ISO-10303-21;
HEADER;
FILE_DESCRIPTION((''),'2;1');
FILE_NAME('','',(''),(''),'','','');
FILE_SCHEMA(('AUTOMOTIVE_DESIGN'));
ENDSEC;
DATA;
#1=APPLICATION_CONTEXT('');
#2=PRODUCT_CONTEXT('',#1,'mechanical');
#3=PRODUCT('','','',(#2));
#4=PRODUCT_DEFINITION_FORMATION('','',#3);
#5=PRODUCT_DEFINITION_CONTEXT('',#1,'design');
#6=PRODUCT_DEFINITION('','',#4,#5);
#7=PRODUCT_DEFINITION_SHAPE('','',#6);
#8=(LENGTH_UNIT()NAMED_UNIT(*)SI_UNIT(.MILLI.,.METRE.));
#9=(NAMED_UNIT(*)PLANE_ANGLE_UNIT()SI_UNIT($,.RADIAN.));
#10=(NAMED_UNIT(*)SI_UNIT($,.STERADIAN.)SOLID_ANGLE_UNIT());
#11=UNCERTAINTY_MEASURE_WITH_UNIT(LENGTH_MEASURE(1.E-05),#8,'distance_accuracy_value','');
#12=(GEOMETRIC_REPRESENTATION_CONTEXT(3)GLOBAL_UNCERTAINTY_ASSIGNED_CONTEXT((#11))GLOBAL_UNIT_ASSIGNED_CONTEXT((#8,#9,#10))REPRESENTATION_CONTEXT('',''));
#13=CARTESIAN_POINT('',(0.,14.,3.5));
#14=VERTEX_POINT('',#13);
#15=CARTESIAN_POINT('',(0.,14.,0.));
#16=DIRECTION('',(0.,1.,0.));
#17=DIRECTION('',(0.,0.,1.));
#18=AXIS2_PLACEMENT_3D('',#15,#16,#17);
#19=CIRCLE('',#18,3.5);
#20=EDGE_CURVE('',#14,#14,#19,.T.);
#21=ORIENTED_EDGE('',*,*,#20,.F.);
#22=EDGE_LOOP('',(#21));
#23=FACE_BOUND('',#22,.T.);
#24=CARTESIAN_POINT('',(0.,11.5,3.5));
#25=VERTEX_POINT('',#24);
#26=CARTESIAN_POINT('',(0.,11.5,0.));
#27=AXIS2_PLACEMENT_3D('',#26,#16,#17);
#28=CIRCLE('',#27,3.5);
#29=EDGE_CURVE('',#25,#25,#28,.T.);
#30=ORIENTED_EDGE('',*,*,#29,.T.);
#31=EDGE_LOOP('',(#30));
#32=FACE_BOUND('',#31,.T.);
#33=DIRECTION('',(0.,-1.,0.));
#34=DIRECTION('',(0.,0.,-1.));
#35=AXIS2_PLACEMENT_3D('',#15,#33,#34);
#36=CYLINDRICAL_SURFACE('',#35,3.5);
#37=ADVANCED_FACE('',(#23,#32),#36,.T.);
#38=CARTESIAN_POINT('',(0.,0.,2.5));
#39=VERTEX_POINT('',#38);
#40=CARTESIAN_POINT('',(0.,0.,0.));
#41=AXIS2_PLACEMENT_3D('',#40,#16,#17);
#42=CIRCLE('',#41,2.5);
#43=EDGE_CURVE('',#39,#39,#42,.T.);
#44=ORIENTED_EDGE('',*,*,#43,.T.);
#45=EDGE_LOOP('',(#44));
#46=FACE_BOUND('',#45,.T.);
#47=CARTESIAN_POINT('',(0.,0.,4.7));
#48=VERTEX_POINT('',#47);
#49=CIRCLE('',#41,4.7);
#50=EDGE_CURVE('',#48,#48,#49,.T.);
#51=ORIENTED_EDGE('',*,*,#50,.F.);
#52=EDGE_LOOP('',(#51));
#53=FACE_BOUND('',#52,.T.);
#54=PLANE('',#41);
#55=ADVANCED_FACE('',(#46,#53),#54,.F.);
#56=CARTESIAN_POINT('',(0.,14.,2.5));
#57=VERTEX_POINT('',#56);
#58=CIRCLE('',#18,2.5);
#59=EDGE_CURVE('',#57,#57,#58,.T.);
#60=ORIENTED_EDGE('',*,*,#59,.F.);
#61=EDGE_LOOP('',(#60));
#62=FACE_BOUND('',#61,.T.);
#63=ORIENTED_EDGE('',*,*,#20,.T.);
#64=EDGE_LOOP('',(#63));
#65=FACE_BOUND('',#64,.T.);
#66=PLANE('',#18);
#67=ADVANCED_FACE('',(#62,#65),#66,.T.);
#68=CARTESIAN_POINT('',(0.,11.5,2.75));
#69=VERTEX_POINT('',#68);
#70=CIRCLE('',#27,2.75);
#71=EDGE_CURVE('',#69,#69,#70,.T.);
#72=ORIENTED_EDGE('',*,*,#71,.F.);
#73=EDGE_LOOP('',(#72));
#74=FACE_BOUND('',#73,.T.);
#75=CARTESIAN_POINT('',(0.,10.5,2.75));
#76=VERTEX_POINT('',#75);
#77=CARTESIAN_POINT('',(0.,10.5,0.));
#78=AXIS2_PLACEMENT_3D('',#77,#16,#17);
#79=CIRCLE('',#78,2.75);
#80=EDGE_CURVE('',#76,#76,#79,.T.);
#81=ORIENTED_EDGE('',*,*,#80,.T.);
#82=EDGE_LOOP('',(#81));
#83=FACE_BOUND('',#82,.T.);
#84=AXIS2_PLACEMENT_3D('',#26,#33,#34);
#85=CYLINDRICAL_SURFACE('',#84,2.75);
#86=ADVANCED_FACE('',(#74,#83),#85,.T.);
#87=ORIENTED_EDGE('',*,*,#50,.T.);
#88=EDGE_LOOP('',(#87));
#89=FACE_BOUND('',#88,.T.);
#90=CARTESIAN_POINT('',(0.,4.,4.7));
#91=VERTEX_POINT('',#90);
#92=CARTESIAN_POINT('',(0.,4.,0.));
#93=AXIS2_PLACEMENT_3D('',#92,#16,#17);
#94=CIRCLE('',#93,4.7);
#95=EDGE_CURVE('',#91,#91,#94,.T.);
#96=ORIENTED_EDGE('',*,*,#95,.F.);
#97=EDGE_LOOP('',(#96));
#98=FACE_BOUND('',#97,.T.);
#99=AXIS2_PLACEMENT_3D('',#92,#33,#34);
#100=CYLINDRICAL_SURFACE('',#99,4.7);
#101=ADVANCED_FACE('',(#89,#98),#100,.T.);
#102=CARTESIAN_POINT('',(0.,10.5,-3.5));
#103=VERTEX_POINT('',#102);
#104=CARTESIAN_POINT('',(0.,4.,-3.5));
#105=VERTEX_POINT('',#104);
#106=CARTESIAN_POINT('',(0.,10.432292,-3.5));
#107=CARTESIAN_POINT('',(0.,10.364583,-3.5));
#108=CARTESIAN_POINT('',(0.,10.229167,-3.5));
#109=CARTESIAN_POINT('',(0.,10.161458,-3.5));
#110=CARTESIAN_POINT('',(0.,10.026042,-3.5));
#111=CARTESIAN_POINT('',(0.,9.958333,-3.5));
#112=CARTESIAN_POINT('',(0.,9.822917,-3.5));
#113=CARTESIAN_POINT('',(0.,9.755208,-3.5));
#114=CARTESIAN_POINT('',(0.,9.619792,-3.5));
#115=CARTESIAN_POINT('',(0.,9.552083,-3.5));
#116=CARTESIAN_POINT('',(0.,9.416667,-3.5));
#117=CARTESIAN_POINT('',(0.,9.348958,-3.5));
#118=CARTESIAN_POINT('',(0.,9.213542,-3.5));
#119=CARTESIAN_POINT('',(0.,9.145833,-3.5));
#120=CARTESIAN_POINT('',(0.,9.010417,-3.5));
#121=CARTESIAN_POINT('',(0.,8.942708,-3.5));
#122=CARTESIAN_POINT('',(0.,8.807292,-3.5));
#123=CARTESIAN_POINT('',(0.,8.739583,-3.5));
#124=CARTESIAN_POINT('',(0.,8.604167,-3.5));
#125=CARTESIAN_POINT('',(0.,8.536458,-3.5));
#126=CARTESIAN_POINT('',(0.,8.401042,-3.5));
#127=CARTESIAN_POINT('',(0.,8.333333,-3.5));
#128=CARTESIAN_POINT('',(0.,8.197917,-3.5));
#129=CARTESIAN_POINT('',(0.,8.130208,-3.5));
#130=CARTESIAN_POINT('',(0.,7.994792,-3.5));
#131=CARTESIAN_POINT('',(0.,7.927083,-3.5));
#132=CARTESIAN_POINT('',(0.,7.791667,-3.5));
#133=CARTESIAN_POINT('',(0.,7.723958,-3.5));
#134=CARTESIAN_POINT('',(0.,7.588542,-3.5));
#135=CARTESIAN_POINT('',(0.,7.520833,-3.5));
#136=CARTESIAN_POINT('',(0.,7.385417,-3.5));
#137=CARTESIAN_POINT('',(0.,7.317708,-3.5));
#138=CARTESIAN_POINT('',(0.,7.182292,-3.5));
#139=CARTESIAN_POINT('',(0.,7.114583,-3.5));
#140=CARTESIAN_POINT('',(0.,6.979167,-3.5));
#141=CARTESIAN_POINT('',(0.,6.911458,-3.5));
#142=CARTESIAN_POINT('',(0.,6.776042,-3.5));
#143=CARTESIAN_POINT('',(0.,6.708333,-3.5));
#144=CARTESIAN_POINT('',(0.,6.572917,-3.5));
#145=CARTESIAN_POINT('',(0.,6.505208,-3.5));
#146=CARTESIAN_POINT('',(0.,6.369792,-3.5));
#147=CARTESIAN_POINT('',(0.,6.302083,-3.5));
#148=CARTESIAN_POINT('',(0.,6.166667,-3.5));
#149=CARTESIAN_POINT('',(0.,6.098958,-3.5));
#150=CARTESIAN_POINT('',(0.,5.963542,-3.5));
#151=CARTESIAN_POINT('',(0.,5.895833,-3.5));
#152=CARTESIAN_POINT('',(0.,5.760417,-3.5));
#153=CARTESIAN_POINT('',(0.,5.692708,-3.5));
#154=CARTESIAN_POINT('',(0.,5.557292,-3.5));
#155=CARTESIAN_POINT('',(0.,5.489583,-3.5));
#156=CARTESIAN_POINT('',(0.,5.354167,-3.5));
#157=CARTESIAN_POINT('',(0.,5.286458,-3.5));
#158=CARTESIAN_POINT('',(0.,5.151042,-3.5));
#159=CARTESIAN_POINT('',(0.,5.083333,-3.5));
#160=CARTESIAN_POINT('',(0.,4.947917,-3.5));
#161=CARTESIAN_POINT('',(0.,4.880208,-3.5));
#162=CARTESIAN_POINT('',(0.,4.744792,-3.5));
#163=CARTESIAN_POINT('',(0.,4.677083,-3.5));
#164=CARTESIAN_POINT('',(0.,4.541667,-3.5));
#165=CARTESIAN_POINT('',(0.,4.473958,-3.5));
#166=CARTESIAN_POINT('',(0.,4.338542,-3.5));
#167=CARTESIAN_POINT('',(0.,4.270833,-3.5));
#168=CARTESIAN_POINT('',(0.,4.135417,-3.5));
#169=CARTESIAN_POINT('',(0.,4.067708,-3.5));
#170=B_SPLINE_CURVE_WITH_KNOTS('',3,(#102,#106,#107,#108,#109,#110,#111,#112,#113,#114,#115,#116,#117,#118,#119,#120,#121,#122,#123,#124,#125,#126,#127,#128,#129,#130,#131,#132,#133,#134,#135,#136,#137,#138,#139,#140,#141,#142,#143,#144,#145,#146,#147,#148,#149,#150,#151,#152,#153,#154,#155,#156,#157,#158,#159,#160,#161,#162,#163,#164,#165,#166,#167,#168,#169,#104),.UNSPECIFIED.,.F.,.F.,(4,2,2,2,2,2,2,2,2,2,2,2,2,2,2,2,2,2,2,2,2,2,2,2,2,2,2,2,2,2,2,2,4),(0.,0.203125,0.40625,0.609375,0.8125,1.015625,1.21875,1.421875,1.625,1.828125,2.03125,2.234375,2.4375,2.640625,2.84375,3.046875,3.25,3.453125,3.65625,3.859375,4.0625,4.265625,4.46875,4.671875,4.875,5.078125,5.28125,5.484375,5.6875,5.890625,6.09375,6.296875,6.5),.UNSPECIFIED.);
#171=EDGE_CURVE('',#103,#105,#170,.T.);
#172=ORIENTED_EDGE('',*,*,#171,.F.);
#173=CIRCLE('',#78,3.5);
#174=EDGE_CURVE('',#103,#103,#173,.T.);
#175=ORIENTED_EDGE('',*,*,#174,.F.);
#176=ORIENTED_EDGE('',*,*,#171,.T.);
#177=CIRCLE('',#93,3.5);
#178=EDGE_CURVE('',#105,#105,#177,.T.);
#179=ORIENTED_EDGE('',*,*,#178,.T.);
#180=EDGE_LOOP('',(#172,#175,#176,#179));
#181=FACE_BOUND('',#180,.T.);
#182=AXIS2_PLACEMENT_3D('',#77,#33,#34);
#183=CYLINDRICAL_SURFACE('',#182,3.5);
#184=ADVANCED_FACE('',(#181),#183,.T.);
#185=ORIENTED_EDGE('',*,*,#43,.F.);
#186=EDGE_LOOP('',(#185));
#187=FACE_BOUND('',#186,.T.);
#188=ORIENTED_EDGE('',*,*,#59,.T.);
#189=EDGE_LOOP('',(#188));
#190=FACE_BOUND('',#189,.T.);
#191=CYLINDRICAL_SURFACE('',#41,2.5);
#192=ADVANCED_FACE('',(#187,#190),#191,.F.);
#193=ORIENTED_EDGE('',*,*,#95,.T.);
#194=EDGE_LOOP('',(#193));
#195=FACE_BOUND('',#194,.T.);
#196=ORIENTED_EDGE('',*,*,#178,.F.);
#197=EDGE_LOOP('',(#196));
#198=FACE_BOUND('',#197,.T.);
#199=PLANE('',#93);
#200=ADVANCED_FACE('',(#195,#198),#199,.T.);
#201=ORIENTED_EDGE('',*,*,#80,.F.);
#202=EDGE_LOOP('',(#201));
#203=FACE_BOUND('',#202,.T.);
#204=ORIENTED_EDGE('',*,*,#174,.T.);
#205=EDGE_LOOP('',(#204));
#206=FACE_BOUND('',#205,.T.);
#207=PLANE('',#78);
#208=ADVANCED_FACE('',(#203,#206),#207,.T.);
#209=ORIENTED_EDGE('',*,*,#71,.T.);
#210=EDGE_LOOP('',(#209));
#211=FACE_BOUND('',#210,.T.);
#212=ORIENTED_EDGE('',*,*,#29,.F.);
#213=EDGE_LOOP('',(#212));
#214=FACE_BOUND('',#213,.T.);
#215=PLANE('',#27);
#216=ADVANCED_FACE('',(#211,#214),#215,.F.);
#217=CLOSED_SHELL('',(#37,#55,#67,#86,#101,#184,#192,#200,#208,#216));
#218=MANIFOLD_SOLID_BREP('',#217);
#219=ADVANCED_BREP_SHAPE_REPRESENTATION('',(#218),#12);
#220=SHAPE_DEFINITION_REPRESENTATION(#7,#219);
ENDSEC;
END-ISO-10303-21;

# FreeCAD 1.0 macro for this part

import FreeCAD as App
import Part
import Sketcher

V = App.Vector

doc = App.newDocument("Part")
params = doc.addObject("Spreadsheet::Sheet", "Params")
for row, (alias, value) in enumerate([
    ("sketch1_diameter", "9.4 mm"),
    ("pad1_length", "4 mm"),
    ("sketch2_diameter", "7 mm"),
    ("pad2_length", "6.5 mm"),
    ("sketch3_diameter", "5.5 mm"),
    ("pad3_length", "1 mm"),
    ("sketch4_diameter", "7 mm"),
    ("pad4_length", "2.5 mm"),
    ("sketch5_diameter", "5 mm"),
], start=1):
    params.set(f"A{row}", alias)
    params.set(f"B{row}", "=" + value)
    params.setAlias(f"B{row}", alias)

body = doc.addObject("PartDesign::Body", "Body")

sketch1 = doc.addObject("Sketcher::SketchObject", "Sketch")
body.addObject(sketch1)
sketch1.AttachmentSupport = (doc.XZ_Plane, [""])
sketch1.MapMode = "FlatFace"
sketch1.addGeometry(Part.Circle(V(0, 0, 0), V(0, 0, 1), 4.7), False)
sketch1.addConstraint([
    Sketcher.Constraint("Coincident", 0, 3, -1, 1),
    Sketcher.Constraint("Diameter", 0, 9.4),
])
sketch1.setExpression("Constraints[1]", "Params.sketch1_diameter")
pad1 = doc.addObject("PartDesign::Pad", "Pad")
body.addObject(pad1)
pad1.Profile = sketch1
pad1.setExpression("Length", "Params.pad1_length")
pad1.Reversed = True

sketch2 = doc.addObject("Sketcher::SketchObject", "Sketch001")
body.addObject(sketch2)
sketch2.AttachmentSupport = (doc.XZ_Plane, [""])
sketch2.MapMode = "FlatFace"
sketch2.AttachmentOffset = App.Placement(V(0, 0, -4), App.Rotation())
sketch2.addGeometry(Part.Circle(V(0, 0, 0), V(0, 0, 1), 3.5), False)
sketch2.addConstraint([
    Sketcher.Constraint("Coincident", 0, 3, -1, 1),
    Sketcher.Constraint("Diameter", 0, 7.0),
])
sketch2.setExpression("Constraints[1]", "Params.sketch2_diameter")
pad2 = doc.addObject("PartDesign::Pad", "Pad001")
body.addObject(pad2)
pad2.Profile = sketch2
pad2.setExpression("Length", "Params.pad2_length")
pad2.Reversed = True

sketch3 = doc.addObject("Sketcher::SketchObject", "Sketch002")
body.addObject(sketch3)
sketch3.AttachmentSupport = (doc.XZ_Plane, [""])
sketch3.MapMode = "FlatFace"
sketch3.AttachmentOffset = App.Placement(V(0, 0, -10.5), App.Rotation())
sketch3.addGeometry(Part.Circle(V(0, 0, 0), V(0, 0, 1), 2.8), False)
sketch3.addConstraint([
    Sketcher.Constraint("Coincident", 0, 3, -1, 1),
    Sketcher.Constraint("Diameter", 0, 5.5),
])
sketch3.setExpression("Constraints[1]", "Params.sketch3_diameter")
pad3 = doc.addObject("PartDesign::Pad", "Pad002")
body.addObject(pad3)
pad3.Profile = sketch3
pad3.setExpression("Length", "Params.pad3_length")
pad3.Reversed = True

sketch4 = doc.addObject("Sketcher::SketchObject", "Sketch003")
body.addObject(sketch4)
sketch4.AttachmentSupport = (doc.XZ_Plane, [""])
sketch4.MapMode = "FlatFace"
sketch4.AttachmentOffset = App.Placement(V(0, 0, -11.5), App.Rotation())
sketch4.addGeometry(Part.Circle(V(0, 0, 0), V(0, 0, 1), 3.5), False)
sketch4.addConstraint([
    Sketcher.Constraint("Coincident", 0, 3, -1, 1),
    Sketcher.Constraint("Diameter", 0, 7.0),
])
sketch4.setExpression("Constraints[1]", "Params.sketch4_diameter")
pad4 = doc.addObject("PartDesign::Pad", "Pad003")
body.addObject(pad4)
pad4.Profile = sketch4
pad4.setExpression("Length", "Params.pad4_length")
pad4.Reversed = True

sketch5 = doc.addObject("Sketcher::SketchObject", "Sketch004")
body.addObject(sketch5)
sketch5.AttachmentSupport = (doc.XZ_Plane, [""])
sketch5.MapMode = "FlatFace"
sketch5.AttachmentOffset = App.Placement(V(0, 0, -14), App.Rotation())
sketch5.addGeometry(Part.Circle(V(0, 0, 0), V(0, 0, 1), 2.5), False)
sketch5.addConstraint([
    Sketcher.Constraint("Coincident", 0, 3, -1, 1),
    Sketcher.Constraint("Diameter", 0, 5.0),
])
sketch5.setExpression("Constraints[1]", "Params.sketch5_diameter")
pocket1 = doc.addObject("PartDesign::Pocket", "Pocket")
body.addObject(pocket1)
pocket1.Profile = sketch5
pocket1.Type = "ThroughAll"
pocket1.Reversed = True

doc.recompute()
